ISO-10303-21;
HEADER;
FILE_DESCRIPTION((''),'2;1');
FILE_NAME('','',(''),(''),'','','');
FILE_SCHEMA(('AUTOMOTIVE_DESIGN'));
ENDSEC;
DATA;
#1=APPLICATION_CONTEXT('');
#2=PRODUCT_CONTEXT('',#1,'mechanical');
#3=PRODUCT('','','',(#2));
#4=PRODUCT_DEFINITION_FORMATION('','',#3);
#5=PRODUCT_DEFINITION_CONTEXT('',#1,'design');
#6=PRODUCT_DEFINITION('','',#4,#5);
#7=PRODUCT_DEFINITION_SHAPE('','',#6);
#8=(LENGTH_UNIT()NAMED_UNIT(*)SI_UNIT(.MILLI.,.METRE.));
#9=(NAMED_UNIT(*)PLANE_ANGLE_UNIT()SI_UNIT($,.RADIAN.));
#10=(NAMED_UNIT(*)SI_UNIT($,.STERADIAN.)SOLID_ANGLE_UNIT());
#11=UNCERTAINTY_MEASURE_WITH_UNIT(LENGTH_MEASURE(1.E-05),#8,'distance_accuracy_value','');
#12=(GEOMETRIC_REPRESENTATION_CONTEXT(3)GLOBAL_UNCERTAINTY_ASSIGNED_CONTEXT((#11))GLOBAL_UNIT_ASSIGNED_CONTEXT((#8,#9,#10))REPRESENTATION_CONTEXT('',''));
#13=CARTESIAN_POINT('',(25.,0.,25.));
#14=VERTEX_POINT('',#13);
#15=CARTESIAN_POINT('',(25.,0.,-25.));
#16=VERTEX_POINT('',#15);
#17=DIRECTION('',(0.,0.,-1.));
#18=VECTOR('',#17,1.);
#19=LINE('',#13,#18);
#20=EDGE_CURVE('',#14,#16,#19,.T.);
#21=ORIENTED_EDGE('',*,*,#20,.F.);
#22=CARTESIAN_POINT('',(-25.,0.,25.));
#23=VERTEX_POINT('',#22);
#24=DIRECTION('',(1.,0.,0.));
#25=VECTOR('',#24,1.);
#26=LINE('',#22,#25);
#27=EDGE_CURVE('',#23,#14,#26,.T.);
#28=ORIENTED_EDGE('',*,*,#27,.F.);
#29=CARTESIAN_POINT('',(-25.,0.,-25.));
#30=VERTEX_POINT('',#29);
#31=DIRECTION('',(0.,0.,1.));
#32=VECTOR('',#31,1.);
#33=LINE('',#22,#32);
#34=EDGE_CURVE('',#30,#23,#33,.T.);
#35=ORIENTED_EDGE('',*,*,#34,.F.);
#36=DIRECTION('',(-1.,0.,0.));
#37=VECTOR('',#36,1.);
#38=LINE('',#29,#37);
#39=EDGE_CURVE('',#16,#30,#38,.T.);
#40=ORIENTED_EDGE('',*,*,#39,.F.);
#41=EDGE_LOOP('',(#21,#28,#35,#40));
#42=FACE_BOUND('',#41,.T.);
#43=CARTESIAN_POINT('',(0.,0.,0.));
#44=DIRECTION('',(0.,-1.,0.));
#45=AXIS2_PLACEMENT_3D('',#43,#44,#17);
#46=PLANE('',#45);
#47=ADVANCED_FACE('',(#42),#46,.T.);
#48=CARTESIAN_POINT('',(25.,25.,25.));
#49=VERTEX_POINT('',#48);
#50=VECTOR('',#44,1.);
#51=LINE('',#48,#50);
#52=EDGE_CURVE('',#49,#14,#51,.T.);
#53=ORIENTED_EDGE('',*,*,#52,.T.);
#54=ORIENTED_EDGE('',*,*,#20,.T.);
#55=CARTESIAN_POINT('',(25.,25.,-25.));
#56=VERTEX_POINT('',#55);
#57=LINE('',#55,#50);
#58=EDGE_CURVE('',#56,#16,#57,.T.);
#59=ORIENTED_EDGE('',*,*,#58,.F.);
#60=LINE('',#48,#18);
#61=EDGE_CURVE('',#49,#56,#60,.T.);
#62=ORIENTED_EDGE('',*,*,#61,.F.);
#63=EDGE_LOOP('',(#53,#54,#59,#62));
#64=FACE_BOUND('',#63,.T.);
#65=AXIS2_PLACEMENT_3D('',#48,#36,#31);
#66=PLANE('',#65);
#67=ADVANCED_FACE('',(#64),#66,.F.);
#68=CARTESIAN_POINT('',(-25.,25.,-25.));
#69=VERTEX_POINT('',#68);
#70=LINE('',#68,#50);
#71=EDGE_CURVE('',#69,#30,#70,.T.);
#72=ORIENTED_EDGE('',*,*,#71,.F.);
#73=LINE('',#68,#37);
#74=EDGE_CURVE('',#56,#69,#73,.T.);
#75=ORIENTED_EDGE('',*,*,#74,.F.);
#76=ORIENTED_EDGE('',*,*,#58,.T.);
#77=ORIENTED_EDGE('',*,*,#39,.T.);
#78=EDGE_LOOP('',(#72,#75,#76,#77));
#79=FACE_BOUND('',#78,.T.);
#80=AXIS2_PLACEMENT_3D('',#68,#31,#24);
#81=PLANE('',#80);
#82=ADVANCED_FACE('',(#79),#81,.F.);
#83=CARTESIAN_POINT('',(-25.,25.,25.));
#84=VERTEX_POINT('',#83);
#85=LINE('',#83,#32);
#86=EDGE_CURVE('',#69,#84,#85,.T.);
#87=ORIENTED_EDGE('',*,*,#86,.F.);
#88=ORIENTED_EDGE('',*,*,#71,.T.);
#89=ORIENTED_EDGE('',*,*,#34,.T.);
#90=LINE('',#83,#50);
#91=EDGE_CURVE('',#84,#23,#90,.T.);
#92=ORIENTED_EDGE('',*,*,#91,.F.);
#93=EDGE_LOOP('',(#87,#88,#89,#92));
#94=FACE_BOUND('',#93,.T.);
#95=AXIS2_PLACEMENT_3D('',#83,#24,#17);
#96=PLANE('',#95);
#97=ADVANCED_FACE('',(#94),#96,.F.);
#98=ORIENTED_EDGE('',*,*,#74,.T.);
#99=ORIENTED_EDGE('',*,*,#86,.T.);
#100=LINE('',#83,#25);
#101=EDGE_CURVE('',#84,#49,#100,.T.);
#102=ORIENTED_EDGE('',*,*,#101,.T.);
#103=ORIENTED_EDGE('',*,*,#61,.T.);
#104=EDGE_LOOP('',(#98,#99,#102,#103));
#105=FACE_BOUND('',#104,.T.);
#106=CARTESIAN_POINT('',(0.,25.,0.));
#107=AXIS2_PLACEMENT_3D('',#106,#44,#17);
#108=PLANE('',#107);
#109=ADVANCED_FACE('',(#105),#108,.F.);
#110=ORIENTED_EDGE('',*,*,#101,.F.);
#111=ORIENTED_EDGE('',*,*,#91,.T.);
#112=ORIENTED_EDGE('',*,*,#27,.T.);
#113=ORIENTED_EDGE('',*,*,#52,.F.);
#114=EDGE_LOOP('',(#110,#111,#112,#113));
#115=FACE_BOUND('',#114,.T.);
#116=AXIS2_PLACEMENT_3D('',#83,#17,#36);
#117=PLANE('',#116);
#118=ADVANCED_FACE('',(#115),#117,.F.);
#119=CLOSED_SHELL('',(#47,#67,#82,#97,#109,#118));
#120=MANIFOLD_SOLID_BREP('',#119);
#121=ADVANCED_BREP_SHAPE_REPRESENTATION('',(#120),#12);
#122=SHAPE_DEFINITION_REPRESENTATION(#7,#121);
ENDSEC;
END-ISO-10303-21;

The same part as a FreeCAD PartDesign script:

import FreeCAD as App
import Part
import Sketcher
from FreeCAD import Vector
Q = App.Units.Quantity


def add_polygon(sketch, points):
    """Adds a closed chain of lines whose ends are joined by coincident constraints."""
    first, n = sketch.GeometryCount, len(points)
    for a, b in zip(points, points[1:] + points[:1]):
        sketch.addGeometry(Part.LineSegment(App.Vector(*a, 0), App.Vector(*b, 0)), False)
    for i in range(n):
        sketch.addConstraint(Sketcher.Constraint("Coincident", first + i, 2, first + (i + 1) % n, 1))

doc = App.newDocument("Part")
body = doc.addObject("PartDesign::Body", "Body")

sketch1 = doc.addObject("Sketcher::SketchObject", "Sketch")
body.addObject(sketch1)
sketch1.AttachmentSupport = (doc.XZ_Plane, [""])
sketch1.MapMode = "FlatFace"
add_polygon(sketch1, [(-25, -25), (-25, 25), (25, 25), (25, -25)])
sketch1.addConstraint(Sketcher.Constraint("Vertical", 0))
sketch1.addConstraint(Sketcher.Constraint("Horizontal", 1))
sketch1.addConstraint(Sketcher.Constraint("Vertical", 2))
sketch1.addConstraint(Sketcher.Constraint("Horizontal", 3))
sketch1.addConstraint(Sketcher.Constraint("Symmetric", 0, 2, 2, 2, -1, 1))
sketch1.addConstraint(Sketcher.Constraint("Equal", 3, 0))
sketch1.addConstraint(Sketcher.Constraint("DistanceX", 1, 1, 1, 2, Q("50 mm")))
pad1 = doc.addObject("PartDesign::Pad", "Pad")
body.addObject(pad1)
pad1.Profile = sketch1
pad1.Length = 25
pad1.Reversed = True

doc.recompute()
